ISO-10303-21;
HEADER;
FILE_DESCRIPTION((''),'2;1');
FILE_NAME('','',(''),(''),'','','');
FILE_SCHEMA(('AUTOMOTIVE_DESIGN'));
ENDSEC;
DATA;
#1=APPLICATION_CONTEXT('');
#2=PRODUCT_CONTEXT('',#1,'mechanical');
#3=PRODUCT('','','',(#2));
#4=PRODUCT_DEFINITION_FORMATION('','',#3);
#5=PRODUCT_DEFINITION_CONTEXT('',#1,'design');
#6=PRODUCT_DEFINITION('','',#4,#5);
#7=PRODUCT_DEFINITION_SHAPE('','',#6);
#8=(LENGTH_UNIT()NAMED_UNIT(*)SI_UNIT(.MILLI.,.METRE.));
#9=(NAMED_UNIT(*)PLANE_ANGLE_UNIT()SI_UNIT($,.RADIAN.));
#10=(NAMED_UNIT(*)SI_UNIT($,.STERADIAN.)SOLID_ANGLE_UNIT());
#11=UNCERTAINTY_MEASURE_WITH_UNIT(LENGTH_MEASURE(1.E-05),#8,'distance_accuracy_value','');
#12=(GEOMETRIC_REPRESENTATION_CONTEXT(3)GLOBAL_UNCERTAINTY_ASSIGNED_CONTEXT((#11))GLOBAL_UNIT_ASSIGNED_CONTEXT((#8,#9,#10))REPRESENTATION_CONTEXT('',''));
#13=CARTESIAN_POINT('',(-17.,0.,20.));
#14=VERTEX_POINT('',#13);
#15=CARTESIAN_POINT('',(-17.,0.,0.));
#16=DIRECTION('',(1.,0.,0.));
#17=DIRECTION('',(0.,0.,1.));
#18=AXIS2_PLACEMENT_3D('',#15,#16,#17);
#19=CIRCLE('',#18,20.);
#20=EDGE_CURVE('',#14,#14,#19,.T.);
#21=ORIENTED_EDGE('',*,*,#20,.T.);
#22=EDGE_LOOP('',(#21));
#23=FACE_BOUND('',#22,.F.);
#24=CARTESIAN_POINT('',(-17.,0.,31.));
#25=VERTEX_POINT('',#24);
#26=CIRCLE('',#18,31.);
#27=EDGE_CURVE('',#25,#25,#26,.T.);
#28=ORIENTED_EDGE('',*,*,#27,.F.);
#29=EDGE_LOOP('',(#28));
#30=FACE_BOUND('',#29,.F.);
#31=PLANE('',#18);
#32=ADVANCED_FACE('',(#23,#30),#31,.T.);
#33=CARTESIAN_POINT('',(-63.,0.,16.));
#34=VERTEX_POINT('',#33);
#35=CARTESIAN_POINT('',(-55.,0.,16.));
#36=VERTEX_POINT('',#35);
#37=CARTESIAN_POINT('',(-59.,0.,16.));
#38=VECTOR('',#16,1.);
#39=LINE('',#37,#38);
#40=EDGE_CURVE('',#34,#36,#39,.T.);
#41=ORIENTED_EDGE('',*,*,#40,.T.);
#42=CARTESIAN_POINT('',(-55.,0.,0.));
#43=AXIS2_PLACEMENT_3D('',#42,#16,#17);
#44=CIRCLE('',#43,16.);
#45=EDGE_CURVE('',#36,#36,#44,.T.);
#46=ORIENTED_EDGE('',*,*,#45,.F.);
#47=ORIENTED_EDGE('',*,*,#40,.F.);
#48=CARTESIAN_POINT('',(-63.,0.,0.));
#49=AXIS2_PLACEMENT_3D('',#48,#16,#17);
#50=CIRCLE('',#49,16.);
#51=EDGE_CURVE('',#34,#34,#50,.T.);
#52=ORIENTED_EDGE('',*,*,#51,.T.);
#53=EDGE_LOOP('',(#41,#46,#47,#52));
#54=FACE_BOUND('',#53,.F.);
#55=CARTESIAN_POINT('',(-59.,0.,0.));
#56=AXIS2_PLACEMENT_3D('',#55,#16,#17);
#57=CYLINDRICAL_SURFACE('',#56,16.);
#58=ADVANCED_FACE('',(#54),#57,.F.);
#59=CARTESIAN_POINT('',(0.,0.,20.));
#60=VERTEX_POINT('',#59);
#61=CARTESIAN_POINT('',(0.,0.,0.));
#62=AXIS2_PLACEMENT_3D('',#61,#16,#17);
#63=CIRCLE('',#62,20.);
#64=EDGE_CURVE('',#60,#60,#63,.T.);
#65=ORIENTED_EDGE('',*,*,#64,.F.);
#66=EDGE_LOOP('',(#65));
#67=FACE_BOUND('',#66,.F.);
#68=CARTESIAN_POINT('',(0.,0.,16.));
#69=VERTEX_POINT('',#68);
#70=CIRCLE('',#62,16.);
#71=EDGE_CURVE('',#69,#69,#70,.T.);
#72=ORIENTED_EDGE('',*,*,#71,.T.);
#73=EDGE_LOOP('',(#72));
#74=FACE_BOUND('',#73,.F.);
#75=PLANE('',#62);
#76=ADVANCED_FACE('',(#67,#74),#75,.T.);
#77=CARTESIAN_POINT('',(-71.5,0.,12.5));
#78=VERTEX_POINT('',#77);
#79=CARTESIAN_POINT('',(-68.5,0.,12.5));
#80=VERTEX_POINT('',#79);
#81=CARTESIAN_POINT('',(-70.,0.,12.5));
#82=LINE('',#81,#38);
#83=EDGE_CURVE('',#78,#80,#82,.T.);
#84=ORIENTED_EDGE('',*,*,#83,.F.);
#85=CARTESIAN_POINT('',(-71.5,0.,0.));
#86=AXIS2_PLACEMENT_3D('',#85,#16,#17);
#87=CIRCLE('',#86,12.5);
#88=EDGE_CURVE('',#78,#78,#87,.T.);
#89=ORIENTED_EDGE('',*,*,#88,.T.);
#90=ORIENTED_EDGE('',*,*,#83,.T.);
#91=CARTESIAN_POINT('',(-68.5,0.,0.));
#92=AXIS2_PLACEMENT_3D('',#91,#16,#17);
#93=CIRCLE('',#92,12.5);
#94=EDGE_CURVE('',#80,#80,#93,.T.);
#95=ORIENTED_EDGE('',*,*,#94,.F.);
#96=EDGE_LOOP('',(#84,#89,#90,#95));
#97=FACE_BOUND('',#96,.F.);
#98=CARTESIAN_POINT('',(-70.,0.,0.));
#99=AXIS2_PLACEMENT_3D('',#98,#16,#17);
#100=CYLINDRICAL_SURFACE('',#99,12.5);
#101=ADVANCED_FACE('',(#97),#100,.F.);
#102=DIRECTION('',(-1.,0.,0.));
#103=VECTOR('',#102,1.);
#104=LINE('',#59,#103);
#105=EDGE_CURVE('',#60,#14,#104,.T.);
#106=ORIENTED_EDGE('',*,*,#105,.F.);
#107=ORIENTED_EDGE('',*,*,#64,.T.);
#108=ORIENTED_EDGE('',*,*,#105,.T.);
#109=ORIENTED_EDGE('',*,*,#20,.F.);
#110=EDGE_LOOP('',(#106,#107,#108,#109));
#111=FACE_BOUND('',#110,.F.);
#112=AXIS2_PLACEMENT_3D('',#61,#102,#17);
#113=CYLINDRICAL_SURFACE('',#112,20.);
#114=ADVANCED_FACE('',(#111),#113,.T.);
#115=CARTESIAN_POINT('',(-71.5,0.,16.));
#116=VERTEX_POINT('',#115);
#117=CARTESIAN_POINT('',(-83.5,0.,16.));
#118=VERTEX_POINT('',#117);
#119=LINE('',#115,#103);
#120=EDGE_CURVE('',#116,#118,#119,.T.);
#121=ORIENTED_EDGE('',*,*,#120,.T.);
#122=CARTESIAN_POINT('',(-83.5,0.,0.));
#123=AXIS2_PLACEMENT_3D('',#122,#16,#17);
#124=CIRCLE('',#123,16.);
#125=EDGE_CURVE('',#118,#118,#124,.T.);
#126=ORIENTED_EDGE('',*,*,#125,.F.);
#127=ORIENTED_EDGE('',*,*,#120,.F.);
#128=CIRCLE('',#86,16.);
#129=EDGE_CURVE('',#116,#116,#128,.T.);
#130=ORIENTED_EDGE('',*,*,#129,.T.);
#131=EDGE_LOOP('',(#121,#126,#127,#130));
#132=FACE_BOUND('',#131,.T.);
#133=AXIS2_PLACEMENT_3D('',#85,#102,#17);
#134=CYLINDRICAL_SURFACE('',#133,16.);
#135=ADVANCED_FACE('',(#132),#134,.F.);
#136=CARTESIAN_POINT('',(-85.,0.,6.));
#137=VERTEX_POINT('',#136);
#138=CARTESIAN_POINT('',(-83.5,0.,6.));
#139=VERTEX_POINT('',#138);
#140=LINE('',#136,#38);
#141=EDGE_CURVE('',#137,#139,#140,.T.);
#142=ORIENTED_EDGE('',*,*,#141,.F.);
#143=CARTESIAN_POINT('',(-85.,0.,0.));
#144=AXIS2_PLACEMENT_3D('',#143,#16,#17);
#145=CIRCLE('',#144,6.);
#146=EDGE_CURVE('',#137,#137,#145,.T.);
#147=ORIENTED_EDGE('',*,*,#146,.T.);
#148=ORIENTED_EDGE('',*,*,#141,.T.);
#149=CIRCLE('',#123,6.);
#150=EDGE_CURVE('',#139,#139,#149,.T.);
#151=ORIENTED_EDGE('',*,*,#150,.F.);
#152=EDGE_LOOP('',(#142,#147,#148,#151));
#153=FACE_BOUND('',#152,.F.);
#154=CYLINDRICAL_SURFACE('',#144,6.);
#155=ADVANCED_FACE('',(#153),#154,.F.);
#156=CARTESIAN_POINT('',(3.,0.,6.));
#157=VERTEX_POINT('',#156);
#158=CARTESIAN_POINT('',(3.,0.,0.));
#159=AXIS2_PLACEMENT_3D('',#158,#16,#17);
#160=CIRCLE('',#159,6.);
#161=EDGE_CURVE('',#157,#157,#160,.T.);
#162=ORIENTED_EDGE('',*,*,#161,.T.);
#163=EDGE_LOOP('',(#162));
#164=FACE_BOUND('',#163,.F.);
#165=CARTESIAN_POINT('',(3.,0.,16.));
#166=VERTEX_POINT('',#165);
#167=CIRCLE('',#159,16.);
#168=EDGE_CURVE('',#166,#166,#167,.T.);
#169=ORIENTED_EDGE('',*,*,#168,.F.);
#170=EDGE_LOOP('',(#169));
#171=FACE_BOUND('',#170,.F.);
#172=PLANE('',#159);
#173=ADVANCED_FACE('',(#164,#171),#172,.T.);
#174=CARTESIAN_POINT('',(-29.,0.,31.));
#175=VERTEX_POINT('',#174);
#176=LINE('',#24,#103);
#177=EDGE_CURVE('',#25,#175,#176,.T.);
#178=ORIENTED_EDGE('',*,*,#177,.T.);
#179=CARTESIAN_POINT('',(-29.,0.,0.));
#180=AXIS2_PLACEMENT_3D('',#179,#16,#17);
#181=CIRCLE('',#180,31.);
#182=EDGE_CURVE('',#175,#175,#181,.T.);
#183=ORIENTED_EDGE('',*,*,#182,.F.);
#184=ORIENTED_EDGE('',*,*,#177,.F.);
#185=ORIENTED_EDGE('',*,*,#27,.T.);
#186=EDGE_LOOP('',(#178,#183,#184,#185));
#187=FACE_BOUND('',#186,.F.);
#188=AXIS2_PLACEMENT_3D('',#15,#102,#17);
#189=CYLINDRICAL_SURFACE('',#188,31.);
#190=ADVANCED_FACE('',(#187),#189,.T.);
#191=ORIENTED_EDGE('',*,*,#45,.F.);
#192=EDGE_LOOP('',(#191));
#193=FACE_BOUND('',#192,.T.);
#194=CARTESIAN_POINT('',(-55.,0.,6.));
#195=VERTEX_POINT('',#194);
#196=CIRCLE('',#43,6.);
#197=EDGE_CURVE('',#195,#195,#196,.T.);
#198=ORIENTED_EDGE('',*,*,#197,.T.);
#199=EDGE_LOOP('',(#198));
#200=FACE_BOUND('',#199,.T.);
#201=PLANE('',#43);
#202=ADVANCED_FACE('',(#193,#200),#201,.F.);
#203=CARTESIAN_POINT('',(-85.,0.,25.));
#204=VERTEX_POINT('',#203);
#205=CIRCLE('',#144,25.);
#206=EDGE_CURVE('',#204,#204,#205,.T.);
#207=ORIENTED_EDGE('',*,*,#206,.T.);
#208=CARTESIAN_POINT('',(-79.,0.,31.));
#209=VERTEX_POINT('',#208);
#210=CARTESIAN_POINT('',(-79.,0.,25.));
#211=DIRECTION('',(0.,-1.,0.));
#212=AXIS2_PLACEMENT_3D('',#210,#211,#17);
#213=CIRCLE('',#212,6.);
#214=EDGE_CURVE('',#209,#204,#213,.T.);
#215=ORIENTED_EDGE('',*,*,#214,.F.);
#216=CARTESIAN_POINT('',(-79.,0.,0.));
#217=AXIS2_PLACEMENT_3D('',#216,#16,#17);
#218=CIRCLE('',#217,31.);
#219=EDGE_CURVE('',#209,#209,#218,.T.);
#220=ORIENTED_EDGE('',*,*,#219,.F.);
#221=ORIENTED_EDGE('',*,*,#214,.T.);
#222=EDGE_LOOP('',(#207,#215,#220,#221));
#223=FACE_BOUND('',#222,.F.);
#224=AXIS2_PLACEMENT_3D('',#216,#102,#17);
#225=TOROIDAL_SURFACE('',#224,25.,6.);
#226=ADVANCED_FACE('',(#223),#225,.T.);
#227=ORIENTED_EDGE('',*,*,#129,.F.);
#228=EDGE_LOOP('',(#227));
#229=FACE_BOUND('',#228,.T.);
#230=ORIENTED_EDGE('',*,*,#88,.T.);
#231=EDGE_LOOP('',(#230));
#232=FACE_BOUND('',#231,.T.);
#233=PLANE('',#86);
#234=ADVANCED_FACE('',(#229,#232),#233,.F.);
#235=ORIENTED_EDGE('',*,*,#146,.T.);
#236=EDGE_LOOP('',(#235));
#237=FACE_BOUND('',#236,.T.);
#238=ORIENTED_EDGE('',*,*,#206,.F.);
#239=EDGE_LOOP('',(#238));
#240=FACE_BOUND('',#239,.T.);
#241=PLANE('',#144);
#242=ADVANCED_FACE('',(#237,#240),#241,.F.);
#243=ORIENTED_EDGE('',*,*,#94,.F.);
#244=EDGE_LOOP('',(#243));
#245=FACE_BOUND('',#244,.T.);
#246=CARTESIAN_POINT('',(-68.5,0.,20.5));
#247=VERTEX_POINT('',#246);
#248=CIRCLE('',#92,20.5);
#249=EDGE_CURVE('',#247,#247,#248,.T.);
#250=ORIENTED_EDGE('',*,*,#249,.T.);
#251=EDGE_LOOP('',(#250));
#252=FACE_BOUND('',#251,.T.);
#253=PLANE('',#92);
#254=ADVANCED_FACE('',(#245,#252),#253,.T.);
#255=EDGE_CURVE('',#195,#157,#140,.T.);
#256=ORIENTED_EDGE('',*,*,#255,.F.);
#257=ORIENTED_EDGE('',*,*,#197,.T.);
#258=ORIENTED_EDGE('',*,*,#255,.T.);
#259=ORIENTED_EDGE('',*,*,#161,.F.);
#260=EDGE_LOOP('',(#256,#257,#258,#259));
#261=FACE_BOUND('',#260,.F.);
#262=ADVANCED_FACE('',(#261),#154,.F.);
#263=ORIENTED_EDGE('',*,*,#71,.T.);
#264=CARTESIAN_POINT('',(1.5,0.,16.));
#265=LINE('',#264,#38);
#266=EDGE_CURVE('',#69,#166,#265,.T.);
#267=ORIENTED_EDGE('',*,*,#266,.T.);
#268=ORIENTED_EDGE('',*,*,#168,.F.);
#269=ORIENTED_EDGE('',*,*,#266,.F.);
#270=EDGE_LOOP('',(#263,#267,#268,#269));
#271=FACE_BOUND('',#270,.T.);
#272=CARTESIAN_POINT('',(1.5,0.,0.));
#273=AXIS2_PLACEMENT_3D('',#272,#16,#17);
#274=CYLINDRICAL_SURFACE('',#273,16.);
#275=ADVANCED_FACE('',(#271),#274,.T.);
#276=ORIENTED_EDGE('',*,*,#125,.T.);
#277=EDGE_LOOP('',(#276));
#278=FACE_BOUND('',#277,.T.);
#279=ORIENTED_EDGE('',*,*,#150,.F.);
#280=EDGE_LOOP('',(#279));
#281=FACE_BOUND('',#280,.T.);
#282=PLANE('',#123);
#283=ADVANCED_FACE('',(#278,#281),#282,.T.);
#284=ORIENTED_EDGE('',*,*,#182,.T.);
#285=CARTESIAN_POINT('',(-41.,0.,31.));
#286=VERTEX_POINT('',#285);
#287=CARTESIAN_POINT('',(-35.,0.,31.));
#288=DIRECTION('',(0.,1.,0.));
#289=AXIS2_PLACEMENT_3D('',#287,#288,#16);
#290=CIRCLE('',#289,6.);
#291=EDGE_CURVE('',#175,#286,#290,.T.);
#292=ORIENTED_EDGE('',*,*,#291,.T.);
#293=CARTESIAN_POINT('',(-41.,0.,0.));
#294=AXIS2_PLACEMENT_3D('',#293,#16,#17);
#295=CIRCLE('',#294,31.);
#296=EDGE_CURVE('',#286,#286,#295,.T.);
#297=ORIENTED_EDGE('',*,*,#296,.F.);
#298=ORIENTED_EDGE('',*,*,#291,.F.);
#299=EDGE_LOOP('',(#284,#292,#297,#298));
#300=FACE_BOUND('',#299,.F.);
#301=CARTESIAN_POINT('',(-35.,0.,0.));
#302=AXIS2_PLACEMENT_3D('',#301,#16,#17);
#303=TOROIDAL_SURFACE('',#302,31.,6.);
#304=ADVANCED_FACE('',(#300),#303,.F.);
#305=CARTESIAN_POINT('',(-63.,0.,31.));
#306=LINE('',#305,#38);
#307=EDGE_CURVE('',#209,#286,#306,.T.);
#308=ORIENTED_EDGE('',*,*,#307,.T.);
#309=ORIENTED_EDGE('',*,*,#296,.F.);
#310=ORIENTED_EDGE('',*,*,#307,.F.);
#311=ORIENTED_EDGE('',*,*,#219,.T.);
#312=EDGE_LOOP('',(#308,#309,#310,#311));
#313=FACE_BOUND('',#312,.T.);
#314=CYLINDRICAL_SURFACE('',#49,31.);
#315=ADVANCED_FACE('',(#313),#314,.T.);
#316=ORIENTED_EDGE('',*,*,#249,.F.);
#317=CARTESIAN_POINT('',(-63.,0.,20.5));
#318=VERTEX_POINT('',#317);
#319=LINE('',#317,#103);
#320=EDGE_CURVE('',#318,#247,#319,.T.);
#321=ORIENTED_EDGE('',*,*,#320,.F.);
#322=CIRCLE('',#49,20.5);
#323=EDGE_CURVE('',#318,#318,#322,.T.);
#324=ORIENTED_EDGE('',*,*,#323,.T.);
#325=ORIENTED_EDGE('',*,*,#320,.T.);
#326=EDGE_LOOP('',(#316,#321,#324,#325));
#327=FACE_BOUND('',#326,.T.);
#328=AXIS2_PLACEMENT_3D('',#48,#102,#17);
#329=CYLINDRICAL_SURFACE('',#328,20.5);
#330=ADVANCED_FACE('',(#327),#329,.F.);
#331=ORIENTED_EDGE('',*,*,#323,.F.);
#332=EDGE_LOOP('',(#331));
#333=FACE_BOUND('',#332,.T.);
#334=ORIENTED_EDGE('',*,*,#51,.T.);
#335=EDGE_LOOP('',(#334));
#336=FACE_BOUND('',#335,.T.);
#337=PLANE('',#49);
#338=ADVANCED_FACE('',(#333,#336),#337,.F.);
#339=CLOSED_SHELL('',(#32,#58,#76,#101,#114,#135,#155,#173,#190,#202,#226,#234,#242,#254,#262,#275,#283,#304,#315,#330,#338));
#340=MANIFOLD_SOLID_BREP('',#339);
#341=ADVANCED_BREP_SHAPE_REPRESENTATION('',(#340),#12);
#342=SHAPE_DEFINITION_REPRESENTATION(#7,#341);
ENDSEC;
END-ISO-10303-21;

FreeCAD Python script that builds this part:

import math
import FreeCAD as App
import Part
import Sketcher
from FreeCAD import Vector
Q = App.Units.Quantity


def edges_at(feature, points):
    """Names of the edges that pass closest to the given points."""
    edges = feature.Shape.Edges
    near = lambda p: min(range(len(edges)), key=lambda i: edges[i].distToShape(Part.Vertex(*p))[0])
    return sorted({f"Edge{near(p) + 1}" for p in points})


def add_polygon(sketch, points):
    """Adds a closed chain of lines whose ends are joined by coincident constraints."""
    first, n = sketch.GeometryCount, len(points)
    for a, b in zip(points, points[1:] + points[:1]):
        sketch.addGeometry(Part.LineSegment(App.Vector(*a, 0), App.Vector(*b, 0)), False)
    for i in range(n):
        sketch.addConstraint(Sketcher.Constraint("Coincident", first + i, 2, first + (i + 1) % n, 1))

doc = App.newDocument("Part")
params = doc.addObject("Spreadsheet::Sheet", "Params")
for row, (alias, value) in enumerate([
    ("sketch1_radius", "6 mm"),
    ("sketch1_width", "3 mm"),
    ("sketch1_width2", "17 mm"),
    ("sketch1_width3", "12 mm"),
    ("sketch1_width4", "44 mm"),
    ("revolution_angle", "360 deg"),
    ("fillet_radius", "6 mm"),
    ("sketch2_width", "12 mm"),
    ("sketch2_width2", "8 mm"),
    ("sketch2_width3", "3 mm"),
    ("sketch2_height", "10 mm"),
    ("sketch2_width4", "28.5 mm"),
    ("groove_angle", "360 deg"),
], start=1):
    params.set(f"A{row}", alias)
    params.set(f"B{row}", "=" + value)
    params.setAlias(f"B{row}", alias)

body = doc.addObject("PartDesign::Body", "Body")

# Sketch on XZ plane
sketch1 = body.newObject("Sketcher::SketchObject", "Sketch")
sketch1.AttachmentSupport = (doc.getObject("XZ_Plane"), [""])
sketch1.MapMode = "FlatFace"
sketch1.addGeometry(Part.LineSegment(Vector(3, 6, 0), Vector(3, 16, 0)), False)
sketch1.addGeometry(Part.LineSegment(Vector(3, 16, 0), Vector(0, 16, 0)), False)
sketch1.addGeometry(Part.LineSegment(Vector(0, 16, 0), Vector(0, 20, 0)), False)
sketch1.addGeometry(Part.LineSegment(Vector(0, 20, 0), Vector(-17, 20, 0)), False)
sketch1.addGeometry(Part.LineSegment(Vector(-17, 20, 0), Vector(-17, 31, 0)), False)
sketch1.addGeometry(Part.LineSegment(Vector(-17, 31, 0), Vector(-29, 31, 0)), False)
sketch1.addGeometry(Part.ArcOfCircle(Part.Circle(Vector(-35, 31, 0), Vector(0, 0, 1), 6), math.radians(180), math.radians(360)), False)
sketch1.addGeometry(Part.LineSegment(Vector(-41, 31, 0), Vector(-85, 31, 0)), False)
sketch1.addGeometry(Part.LineSegment(Vector(-85, 31, 0), Vector(-85, 6, 0)), False)
sketch1.addGeometry(Part.LineSegment(Vector(-85, 6, 0), Vector(3, 6, 0)), False)
sketch1.addConstraint(Sketcher.Constraint("Coincident", 0, 2, 1, 1))
sketch1.addConstraint(Sketcher.Constraint("Coincident", 1, 2, 2, 1))
sketch1.addConstraint(Sketcher.Constraint("Coincident", 2, 2, 3, 1))
sketch1.addConstraint(Sketcher.Constraint("Coincident", 3, 2, 4, 1))
sketch1.addConstraint(Sketcher.Constraint("Coincident", 4, 2, 5, 1))
sketch1.addConstraint(Sketcher.Constraint("Coincident", 5, 2, 6, 2))
sketch1.addConstraint(Sketcher.Constraint("Coincident", 6, 1, 7, 1))
sketch1.addConstraint(Sketcher.Constraint("Coincident", 7, 2, 8, 1))
sketch1.addConstraint(Sketcher.Constraint("Coincident", 8, 2, 9, 1))
sketch1.addConstraint(Sketcher.Constraint("Coincident", 9, 2, 0, 1))
sketch1.addConstraint(Sketcher.Constraint("Vertical", 0))
sketch1.addConstraint(Sketcher.Constraint("Horizontal", 1))
sketch1.addConstraint(Sketcher.Constraint("Vertical", 2))
sketch1.addConstraint(Sketcher.Constraint("Horizontal", 3))
sketch1.addConstraint(Sketcher.Constraint("Vertical", 4))
sketch1.addConstraint(Sketcher.Constraint("Horizontal", 5))
sketch1.addConstraint(Sketcher.Constraint("Horizontal", 7))
sketch1.addConstraint(Sketcher.Constraint("Vertical", 8))
sketch1.addConstraint(Sketcher.Constraint("Horizontal", 9))
sketch1.addConstraint(Sketcher.Constraint("PointOnObject", 1, 2, -2))
sketch1.addConstraint(Sketcher.Constraint("Horizontal", 6, 3, 4, 2))
sketch1.addConstraint(Sketcher.Constraint("Horizontal", 5, 2, 6, 1))
sketch1.addConstraint(Sketcher.Constraint("Radius", 6, Q("6 mm")))
sketch1.addConstraint(Sketcher.Constraint("DistanceX", 1, 2, 1, 1, Q("3 mm")))
sketch1.addConstraint(Sketcher.Constraint("DistanceX", 3, 2, 3, 1, Q("17 mm")))
sketch1.addConstraint(Sketcher.Constraint("DistanceX", 5, 2, 5, 1, Q("12 mm")))
sketch1.addConstraint(Sketcher.Constraint("DistanceX", 7, 2, 7, 1, Q("44 mm")))
sketch1.addConstraint(Sketcher.Constraint("DistanceY", 0, 1, 0, 2, Q("10 mm")))
sketch1.addConstraint(Sketcher.Constraint("DistanceY", 2, 1, 2, 2, Q("4 mm")))
sketch1.addConstraint(Sketcher.Constraint("DistanceY", 4, 1, 4, 2, Q("11 mm")))
sketch1.addConstraint(Sketcher.Constraint("DistanceY", -1, 1, 6, 3, Q("31 mm")))
sketch1.setExpression("Constraints[22]", "Params.sketch1_radius")
sketch1.setExpression("Constraints[23]", "Params.sketch1_width")
sketch1.setExpression("Constraints[24]", "Params.sketch1_width2")
sketch1.setExpression("Constraints[25]", "Params.sketch1_width3")
sketch1.setExpression("Constraints[26]", "Params.sketch1_width4")
revolution = body.newObject("PartDesign::Revolution", "Revolution")
revolution.Profile = sketch1
revolution.ReferenceAxis = (sketch1, ["H_Axis"])
revolution.setExpression("Angle", "Params.revolution_angle")
doc.recompute()

fillet = body.newObject("PartDesign::Fillet", "Fillet")
fillet.Base = (revolution, edges_at(revolution, [(-85, 0, -31)]))
fillet.setExpression("Radius", "Params.fillet_radius")

# Sketch on XZ plane
sketch2 = body.newObject("Sketcher::SketchObject", "Sketch001")
sketch2.AttachmentSupport = (doc.getObject("XZ_Plane"), [""])
sketch2.MapMode = "FlatFace"
add_polygon(sketch2, [(-71.5, 16), (-83.5, 16), (-83.5, 6), (-55, 6), (-55, 16), (-63, 16), (-63, 20.5), (-68.5, 20.5), (-68.5, 12.5), (-71.5, 12.5)])  # lines 0-9
sketch2.addConstraint(Sketcher.Constraint("Horizontal", 0))
sketch2.addConstraint(Sketcher.Constraint("Vertical", 1))
sketch2.addConstraint(Sketcher.Constraint("Horizontal", 2))
sketch2.addConstraint(Sketcher.Constraint("Vertical", 3))
sketch2.addConstraint(Sketcher.Constraint("Horizontal", 4))
sketch2.addConstraint(Sketcher.Constraint("Vertical", 5))
sketch2.addConstraint(Sketcher.Constraint("Horizontal", 6))
sketch2.addConstraint(Sketcher.Constraint("Vertical", 7))
sketch2.addConstraint(Sketcher.Constraint("Horizontal", 8))
sketch2.addConstraint(Sketcher.Constraint("Vertical", 9))
sketch2.addConstraint(Sketcher.Constraint("Horizontal", 0, 2, 3, 2))
sketch2.addConstraint(Sketcher.Constraint("Equal", 4, 7))
sketch2.addConstraint(Sketcher.Constraint("DistanceX", 0, 2, 0, 1, Q("12 mm")))
sketch2.addConstraint(Sketcher.Constraint("DistanceX", 4, 2, 4, 1, Q("8 mm")))
sketch2.addConstraint(Sketcher.Constraint("DistanceX", 8, 2, 8, 1, Q("3 mm")))
sketch2.addConstraint(Sketcher.Constraint("DistanceY", 1, 2, 1, 1, Q("10 mm")))
sketch2.addConstraint(Sketcher.Constraint("DistanceX", 2, 1, 2, 2, Q("28.5 mm")))
sketch2.addConstraint(Sketcher.Constraint("DistanceY", 5, 1, 5, 2, Q("4.5 mm")))
sketch2.addConstraint(Sketcher.Constraint("DistanceY", -1, 1, 0, 2, Q("16 mm")))
sketch2.addConstraint(Sketcher.Constraint("DistanceX", 2, 2, -1, 1, Q("55 mm")))
sketch2.setExpression("Constraints[22]", "Params.sketch2_width")
sketch2.setExpression("Constraints[23]", "Params.sketch2_width2")
sketch2.setExpression("Constraints[24]", "Params.sketch2_width3")
sketch2.setExpression("Constraints[25]", "Params.sketch2_height")
sketch2.setExpression("Constraints[26]", "Params.sketch2_width4")
groove = body.newObject("PartDesign::Groove", "Groove")
groove.Profile = sketch2
groove.ReferenceAxis = (sketch2, ["H_Axis"])
groove.setExpression("Angle", "Params.groove_angle")

doc.recompute()
